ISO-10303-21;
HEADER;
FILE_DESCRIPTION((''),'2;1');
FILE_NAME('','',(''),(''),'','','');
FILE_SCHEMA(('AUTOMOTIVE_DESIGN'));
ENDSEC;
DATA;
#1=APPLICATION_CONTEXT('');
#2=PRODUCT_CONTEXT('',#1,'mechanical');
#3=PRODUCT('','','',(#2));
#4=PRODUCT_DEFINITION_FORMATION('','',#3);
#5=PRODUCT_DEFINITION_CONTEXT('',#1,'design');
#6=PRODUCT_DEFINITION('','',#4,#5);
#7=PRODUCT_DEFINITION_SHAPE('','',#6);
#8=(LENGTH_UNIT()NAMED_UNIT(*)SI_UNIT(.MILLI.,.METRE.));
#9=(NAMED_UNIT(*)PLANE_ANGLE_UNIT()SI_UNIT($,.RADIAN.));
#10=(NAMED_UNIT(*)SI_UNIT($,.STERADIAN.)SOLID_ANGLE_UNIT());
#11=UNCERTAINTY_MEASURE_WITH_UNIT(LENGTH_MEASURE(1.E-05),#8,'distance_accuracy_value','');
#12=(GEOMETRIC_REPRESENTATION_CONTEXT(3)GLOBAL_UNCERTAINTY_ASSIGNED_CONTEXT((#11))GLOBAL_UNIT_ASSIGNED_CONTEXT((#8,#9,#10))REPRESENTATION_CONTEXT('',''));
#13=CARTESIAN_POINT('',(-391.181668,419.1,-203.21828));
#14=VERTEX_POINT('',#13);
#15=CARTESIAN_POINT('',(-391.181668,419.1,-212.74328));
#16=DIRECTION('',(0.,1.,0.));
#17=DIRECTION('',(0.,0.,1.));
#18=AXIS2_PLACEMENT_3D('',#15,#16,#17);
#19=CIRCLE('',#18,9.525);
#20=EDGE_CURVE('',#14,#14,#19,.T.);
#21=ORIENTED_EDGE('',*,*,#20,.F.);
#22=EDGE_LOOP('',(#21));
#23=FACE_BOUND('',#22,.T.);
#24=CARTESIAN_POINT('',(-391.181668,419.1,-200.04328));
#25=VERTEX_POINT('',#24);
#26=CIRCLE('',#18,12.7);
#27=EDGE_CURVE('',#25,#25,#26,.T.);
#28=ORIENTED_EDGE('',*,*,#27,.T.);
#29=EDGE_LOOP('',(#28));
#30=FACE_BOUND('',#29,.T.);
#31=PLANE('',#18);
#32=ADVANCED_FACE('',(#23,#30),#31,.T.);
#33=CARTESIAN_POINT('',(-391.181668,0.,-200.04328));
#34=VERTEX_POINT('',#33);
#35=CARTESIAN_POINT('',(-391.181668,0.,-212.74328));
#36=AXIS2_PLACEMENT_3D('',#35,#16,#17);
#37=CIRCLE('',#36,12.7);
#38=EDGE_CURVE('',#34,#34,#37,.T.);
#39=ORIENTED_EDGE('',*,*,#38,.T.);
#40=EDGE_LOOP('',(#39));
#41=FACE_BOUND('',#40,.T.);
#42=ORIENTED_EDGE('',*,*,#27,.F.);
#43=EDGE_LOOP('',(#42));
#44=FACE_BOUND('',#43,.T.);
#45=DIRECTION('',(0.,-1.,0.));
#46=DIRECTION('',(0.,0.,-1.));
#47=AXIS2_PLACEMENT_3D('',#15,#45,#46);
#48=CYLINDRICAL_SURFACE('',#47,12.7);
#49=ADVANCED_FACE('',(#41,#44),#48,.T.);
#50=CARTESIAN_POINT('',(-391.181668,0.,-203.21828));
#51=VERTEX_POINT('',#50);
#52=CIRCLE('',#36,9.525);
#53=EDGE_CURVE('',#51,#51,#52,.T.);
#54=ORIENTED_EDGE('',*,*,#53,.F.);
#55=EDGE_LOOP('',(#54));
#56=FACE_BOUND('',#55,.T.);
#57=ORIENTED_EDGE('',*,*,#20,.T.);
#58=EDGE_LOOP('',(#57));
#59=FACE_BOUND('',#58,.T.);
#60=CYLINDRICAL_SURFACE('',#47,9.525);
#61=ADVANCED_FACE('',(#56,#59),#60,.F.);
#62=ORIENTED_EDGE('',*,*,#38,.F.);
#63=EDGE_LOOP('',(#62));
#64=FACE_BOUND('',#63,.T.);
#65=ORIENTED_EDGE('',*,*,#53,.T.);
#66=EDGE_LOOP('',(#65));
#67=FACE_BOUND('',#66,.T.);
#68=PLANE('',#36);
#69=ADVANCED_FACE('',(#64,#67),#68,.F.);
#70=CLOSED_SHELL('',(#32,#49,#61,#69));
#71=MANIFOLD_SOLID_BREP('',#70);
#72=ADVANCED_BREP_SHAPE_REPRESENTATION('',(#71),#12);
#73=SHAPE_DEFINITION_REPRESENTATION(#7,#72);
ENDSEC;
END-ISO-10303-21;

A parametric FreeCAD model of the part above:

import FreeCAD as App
import Part
import Sketcher
from FreeCAD import Vector
Q = App.Units.Quantity

doc = App.newDocument("Part")
body = doc.addObject("PartDesign::Body", "Body")

sketch1 = doc.addObject("Sketcher::SketchObject", "Sketch")
body.addObject(sketch1)
sketch1.AttachmentSupport = (doc.XZ_Plane, [""])
sketch1.MapMode = "FlatFace"
sketch1.addGeometry(Part.Circle(Vector(-391, -213, 0), Vector(0, 0, 1), 13), False)
sketch1.addGeometry(Part.Circle(Vector(-391, -213, 0), Vector(0, 0, 1), 10), False)
sketch1.addConstraint(Sketcher.Constraint("Coincident", 1, 3, 0, 3))
sketch1.addConstraint(Sketcher.Constraint("Diameter", 0, Q("1 in")))
sketch1.addConstraint(Sketcher.Constraint("Diameter", 1, Q("0.75 in")))
sketch1.addConstraint(Sketcher.Constraint("DistanceX", 0, 3, -1, 1, Q("391.181668 mm")))
sketch1.addConstraint(Sketcher.Constraint("DistanceY", 0, 3, -1, 1, Q("212.74328 mm")))
pad1 = doc.addObject("PartDesign::Pad", "Pad")
body.addObject(pad1)
pad1.Profile = sketch1
pad1.Length = Q("16.5 in")
pad1.Reversed = True

doc.recompute()
